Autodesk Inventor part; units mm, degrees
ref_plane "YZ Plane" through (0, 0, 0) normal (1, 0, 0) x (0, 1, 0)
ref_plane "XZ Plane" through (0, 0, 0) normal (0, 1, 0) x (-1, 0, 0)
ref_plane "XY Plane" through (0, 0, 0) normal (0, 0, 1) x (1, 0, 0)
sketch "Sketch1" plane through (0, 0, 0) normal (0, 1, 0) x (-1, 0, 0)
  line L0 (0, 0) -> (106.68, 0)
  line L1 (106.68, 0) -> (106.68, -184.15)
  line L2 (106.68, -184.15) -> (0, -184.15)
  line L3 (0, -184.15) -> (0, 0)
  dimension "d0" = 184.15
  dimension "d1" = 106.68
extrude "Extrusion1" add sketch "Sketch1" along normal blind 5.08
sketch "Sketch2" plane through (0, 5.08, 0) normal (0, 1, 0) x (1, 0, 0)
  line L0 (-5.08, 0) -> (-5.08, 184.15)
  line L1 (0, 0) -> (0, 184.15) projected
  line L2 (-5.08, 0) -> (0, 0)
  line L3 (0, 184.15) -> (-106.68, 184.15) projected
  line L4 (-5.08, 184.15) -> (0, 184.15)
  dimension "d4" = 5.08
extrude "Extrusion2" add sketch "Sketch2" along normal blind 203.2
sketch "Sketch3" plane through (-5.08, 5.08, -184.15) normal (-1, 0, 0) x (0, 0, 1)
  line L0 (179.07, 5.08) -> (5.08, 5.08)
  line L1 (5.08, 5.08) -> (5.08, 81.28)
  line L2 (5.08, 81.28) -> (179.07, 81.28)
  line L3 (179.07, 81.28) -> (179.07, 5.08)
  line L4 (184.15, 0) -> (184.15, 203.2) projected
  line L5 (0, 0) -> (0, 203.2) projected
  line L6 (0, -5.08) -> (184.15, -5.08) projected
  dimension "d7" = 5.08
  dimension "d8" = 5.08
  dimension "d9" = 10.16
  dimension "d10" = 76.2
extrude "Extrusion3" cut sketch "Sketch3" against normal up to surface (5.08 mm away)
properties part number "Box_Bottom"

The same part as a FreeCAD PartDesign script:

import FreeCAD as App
import Part
import Sketcher

V = App.Vector
Q = App.Units.Quantity


def add_polygon(sketch, points):
    """Adds a closed chain of lines whose ends are joined by coincident constraints."""
    first, n = sketch.GeometryCount, len(points)
    for a, b in zip(points, points[1:] + points[:1]):
        sketch.addGeometry(Part.LineSegment(App.Vector(*a, 0), App.Vector(*b, 0)), False)
    for i in range(n):
        sketch.addConstraint(Sketcher.Constraint("Coincident", first + i, 2, first + (i + 1) % n, 1))

doc = App.newDocument("Part")
body = doc.addObject("PartDesign::Body", "Body")

sketch1 = doc.addObject("Sketcher::SketchObject", "Sketch")
body.addObject(sketch1)
sketch1.AttachmentSupport = (doc.XZ_Plane, [""])
sketch1.MapMode = "FlatFace"
add_polygon(sketch1, [(-107, 0), (0, 0), (0, -184), (-107, -184)])
sketch1.addConstraint([
    Sketcher.Constraint("Horizontal", 0),
    Sketcher.Constraint("Vertical", 1),
    Sketcher.Constraint("Horizontal", 2),
    Sketcher.Constraint("Vertical", 3),
    Sketcher.Constraint("Coincident", 0, 2, -1, 1),
    Sketcher.Constraint("DistanceX", 0, 1, 0, 2, Q("4.2 in")),
    Sketcher.Constraint("DistanceY", 1, 2, 1, 1, Q("7.25 in")),
])
pad1 = doc.addObject("PartDesign::Pad", "Pad")
body.addObject(pad1)
pad1.Profile = sketch1
pad1.Length = Q("0.2 in")
pad1.Reversed = True

sketch2 = doc.addObject("Sketcher::SketchObject", "Sketch001")
body.addObject(sketch2)
sketch2.AttachmentSupport = (doc.XZ_Plane, [""])
sketch2.MapMode = "FlatFace"
sketch2.AttachmentOffset = App.Placement(V(0, 0, -0.2 * 25.4), App.Rotation())
add_polygon(sketch2, [(-5, -184), (-5, 0), (0, 0), (0, -184)])
sketch2.addConstraint([
    Sketcher.Constraint("Vertical", 0),
    Sketcher.Constraint("Horizontal", 1),
    Sketcher.Constraint("Vertical", 2),
    Sketcher.Constraint("Horizontal", 3),
    Sketcher.Constraint("Coincident", 1, 2, -1, 1),
    Sketcher.Constraint("DistanceX", 1, 1, 1, 2, Q("0.2 in")),
    Sketcher.Constraint("DistanceY", 0, 1, 0, 2, Q("7.25 in")),
])
pad2 = doc.addObject("PartDesign::Pad", "Pad001")
body.addObject(pad2)
pad2.Profile = sketch2
pad2.Length = Q("8 in")
pad2.Reversed = True

sketch3 = doc.addObject("Sketcher::SketchObject", "Sketch002")
body.addObject(sketch3)
sketch3.AttachmentSupport = (doc.YZ_Plane, [""])
sketch3.MapMode = "FlatFace"
sketch3.AttachmentOffset = App.Placement(V(0, 0, -0.2 * 25.4), App.Rotation())
add_polygon(sketch3, [(10, -179), (10, -5), (86, -5), (86, -179)])
sketch3.addConstraint([
    Sketcher.Constraint("Vertical", 0),
    Sketcher.Constraint("Horizontal", 1),
    Sketcher.Constraint("Vertical", 2),
    Sketcher.Constraint("Horizontal", 3),
    Sketcher.Constraint("DistanceX", 1, 1, 1, 2, Q("3 in")),
    Sketcher.Constraint("DistanceX", -1, 1, 0, 2, Q("0.4 in")),
    Sketcher.Constraint("DistanceY", 0, 2, -1, 1, Q("0.2 in")),
    Sketcher.Constraint("DistanceY", 0, 1, 0, 2, Q("6.85 in")),
])
pocket1 = doc.addObject("PartDesign::Pocket", "Pocket")
body.addObject(pocket1)
pocket1.Profile = sketch3
pocket1.Length = Q("0.2 in")
pocket1.Reversed = True

doc.recompute()
